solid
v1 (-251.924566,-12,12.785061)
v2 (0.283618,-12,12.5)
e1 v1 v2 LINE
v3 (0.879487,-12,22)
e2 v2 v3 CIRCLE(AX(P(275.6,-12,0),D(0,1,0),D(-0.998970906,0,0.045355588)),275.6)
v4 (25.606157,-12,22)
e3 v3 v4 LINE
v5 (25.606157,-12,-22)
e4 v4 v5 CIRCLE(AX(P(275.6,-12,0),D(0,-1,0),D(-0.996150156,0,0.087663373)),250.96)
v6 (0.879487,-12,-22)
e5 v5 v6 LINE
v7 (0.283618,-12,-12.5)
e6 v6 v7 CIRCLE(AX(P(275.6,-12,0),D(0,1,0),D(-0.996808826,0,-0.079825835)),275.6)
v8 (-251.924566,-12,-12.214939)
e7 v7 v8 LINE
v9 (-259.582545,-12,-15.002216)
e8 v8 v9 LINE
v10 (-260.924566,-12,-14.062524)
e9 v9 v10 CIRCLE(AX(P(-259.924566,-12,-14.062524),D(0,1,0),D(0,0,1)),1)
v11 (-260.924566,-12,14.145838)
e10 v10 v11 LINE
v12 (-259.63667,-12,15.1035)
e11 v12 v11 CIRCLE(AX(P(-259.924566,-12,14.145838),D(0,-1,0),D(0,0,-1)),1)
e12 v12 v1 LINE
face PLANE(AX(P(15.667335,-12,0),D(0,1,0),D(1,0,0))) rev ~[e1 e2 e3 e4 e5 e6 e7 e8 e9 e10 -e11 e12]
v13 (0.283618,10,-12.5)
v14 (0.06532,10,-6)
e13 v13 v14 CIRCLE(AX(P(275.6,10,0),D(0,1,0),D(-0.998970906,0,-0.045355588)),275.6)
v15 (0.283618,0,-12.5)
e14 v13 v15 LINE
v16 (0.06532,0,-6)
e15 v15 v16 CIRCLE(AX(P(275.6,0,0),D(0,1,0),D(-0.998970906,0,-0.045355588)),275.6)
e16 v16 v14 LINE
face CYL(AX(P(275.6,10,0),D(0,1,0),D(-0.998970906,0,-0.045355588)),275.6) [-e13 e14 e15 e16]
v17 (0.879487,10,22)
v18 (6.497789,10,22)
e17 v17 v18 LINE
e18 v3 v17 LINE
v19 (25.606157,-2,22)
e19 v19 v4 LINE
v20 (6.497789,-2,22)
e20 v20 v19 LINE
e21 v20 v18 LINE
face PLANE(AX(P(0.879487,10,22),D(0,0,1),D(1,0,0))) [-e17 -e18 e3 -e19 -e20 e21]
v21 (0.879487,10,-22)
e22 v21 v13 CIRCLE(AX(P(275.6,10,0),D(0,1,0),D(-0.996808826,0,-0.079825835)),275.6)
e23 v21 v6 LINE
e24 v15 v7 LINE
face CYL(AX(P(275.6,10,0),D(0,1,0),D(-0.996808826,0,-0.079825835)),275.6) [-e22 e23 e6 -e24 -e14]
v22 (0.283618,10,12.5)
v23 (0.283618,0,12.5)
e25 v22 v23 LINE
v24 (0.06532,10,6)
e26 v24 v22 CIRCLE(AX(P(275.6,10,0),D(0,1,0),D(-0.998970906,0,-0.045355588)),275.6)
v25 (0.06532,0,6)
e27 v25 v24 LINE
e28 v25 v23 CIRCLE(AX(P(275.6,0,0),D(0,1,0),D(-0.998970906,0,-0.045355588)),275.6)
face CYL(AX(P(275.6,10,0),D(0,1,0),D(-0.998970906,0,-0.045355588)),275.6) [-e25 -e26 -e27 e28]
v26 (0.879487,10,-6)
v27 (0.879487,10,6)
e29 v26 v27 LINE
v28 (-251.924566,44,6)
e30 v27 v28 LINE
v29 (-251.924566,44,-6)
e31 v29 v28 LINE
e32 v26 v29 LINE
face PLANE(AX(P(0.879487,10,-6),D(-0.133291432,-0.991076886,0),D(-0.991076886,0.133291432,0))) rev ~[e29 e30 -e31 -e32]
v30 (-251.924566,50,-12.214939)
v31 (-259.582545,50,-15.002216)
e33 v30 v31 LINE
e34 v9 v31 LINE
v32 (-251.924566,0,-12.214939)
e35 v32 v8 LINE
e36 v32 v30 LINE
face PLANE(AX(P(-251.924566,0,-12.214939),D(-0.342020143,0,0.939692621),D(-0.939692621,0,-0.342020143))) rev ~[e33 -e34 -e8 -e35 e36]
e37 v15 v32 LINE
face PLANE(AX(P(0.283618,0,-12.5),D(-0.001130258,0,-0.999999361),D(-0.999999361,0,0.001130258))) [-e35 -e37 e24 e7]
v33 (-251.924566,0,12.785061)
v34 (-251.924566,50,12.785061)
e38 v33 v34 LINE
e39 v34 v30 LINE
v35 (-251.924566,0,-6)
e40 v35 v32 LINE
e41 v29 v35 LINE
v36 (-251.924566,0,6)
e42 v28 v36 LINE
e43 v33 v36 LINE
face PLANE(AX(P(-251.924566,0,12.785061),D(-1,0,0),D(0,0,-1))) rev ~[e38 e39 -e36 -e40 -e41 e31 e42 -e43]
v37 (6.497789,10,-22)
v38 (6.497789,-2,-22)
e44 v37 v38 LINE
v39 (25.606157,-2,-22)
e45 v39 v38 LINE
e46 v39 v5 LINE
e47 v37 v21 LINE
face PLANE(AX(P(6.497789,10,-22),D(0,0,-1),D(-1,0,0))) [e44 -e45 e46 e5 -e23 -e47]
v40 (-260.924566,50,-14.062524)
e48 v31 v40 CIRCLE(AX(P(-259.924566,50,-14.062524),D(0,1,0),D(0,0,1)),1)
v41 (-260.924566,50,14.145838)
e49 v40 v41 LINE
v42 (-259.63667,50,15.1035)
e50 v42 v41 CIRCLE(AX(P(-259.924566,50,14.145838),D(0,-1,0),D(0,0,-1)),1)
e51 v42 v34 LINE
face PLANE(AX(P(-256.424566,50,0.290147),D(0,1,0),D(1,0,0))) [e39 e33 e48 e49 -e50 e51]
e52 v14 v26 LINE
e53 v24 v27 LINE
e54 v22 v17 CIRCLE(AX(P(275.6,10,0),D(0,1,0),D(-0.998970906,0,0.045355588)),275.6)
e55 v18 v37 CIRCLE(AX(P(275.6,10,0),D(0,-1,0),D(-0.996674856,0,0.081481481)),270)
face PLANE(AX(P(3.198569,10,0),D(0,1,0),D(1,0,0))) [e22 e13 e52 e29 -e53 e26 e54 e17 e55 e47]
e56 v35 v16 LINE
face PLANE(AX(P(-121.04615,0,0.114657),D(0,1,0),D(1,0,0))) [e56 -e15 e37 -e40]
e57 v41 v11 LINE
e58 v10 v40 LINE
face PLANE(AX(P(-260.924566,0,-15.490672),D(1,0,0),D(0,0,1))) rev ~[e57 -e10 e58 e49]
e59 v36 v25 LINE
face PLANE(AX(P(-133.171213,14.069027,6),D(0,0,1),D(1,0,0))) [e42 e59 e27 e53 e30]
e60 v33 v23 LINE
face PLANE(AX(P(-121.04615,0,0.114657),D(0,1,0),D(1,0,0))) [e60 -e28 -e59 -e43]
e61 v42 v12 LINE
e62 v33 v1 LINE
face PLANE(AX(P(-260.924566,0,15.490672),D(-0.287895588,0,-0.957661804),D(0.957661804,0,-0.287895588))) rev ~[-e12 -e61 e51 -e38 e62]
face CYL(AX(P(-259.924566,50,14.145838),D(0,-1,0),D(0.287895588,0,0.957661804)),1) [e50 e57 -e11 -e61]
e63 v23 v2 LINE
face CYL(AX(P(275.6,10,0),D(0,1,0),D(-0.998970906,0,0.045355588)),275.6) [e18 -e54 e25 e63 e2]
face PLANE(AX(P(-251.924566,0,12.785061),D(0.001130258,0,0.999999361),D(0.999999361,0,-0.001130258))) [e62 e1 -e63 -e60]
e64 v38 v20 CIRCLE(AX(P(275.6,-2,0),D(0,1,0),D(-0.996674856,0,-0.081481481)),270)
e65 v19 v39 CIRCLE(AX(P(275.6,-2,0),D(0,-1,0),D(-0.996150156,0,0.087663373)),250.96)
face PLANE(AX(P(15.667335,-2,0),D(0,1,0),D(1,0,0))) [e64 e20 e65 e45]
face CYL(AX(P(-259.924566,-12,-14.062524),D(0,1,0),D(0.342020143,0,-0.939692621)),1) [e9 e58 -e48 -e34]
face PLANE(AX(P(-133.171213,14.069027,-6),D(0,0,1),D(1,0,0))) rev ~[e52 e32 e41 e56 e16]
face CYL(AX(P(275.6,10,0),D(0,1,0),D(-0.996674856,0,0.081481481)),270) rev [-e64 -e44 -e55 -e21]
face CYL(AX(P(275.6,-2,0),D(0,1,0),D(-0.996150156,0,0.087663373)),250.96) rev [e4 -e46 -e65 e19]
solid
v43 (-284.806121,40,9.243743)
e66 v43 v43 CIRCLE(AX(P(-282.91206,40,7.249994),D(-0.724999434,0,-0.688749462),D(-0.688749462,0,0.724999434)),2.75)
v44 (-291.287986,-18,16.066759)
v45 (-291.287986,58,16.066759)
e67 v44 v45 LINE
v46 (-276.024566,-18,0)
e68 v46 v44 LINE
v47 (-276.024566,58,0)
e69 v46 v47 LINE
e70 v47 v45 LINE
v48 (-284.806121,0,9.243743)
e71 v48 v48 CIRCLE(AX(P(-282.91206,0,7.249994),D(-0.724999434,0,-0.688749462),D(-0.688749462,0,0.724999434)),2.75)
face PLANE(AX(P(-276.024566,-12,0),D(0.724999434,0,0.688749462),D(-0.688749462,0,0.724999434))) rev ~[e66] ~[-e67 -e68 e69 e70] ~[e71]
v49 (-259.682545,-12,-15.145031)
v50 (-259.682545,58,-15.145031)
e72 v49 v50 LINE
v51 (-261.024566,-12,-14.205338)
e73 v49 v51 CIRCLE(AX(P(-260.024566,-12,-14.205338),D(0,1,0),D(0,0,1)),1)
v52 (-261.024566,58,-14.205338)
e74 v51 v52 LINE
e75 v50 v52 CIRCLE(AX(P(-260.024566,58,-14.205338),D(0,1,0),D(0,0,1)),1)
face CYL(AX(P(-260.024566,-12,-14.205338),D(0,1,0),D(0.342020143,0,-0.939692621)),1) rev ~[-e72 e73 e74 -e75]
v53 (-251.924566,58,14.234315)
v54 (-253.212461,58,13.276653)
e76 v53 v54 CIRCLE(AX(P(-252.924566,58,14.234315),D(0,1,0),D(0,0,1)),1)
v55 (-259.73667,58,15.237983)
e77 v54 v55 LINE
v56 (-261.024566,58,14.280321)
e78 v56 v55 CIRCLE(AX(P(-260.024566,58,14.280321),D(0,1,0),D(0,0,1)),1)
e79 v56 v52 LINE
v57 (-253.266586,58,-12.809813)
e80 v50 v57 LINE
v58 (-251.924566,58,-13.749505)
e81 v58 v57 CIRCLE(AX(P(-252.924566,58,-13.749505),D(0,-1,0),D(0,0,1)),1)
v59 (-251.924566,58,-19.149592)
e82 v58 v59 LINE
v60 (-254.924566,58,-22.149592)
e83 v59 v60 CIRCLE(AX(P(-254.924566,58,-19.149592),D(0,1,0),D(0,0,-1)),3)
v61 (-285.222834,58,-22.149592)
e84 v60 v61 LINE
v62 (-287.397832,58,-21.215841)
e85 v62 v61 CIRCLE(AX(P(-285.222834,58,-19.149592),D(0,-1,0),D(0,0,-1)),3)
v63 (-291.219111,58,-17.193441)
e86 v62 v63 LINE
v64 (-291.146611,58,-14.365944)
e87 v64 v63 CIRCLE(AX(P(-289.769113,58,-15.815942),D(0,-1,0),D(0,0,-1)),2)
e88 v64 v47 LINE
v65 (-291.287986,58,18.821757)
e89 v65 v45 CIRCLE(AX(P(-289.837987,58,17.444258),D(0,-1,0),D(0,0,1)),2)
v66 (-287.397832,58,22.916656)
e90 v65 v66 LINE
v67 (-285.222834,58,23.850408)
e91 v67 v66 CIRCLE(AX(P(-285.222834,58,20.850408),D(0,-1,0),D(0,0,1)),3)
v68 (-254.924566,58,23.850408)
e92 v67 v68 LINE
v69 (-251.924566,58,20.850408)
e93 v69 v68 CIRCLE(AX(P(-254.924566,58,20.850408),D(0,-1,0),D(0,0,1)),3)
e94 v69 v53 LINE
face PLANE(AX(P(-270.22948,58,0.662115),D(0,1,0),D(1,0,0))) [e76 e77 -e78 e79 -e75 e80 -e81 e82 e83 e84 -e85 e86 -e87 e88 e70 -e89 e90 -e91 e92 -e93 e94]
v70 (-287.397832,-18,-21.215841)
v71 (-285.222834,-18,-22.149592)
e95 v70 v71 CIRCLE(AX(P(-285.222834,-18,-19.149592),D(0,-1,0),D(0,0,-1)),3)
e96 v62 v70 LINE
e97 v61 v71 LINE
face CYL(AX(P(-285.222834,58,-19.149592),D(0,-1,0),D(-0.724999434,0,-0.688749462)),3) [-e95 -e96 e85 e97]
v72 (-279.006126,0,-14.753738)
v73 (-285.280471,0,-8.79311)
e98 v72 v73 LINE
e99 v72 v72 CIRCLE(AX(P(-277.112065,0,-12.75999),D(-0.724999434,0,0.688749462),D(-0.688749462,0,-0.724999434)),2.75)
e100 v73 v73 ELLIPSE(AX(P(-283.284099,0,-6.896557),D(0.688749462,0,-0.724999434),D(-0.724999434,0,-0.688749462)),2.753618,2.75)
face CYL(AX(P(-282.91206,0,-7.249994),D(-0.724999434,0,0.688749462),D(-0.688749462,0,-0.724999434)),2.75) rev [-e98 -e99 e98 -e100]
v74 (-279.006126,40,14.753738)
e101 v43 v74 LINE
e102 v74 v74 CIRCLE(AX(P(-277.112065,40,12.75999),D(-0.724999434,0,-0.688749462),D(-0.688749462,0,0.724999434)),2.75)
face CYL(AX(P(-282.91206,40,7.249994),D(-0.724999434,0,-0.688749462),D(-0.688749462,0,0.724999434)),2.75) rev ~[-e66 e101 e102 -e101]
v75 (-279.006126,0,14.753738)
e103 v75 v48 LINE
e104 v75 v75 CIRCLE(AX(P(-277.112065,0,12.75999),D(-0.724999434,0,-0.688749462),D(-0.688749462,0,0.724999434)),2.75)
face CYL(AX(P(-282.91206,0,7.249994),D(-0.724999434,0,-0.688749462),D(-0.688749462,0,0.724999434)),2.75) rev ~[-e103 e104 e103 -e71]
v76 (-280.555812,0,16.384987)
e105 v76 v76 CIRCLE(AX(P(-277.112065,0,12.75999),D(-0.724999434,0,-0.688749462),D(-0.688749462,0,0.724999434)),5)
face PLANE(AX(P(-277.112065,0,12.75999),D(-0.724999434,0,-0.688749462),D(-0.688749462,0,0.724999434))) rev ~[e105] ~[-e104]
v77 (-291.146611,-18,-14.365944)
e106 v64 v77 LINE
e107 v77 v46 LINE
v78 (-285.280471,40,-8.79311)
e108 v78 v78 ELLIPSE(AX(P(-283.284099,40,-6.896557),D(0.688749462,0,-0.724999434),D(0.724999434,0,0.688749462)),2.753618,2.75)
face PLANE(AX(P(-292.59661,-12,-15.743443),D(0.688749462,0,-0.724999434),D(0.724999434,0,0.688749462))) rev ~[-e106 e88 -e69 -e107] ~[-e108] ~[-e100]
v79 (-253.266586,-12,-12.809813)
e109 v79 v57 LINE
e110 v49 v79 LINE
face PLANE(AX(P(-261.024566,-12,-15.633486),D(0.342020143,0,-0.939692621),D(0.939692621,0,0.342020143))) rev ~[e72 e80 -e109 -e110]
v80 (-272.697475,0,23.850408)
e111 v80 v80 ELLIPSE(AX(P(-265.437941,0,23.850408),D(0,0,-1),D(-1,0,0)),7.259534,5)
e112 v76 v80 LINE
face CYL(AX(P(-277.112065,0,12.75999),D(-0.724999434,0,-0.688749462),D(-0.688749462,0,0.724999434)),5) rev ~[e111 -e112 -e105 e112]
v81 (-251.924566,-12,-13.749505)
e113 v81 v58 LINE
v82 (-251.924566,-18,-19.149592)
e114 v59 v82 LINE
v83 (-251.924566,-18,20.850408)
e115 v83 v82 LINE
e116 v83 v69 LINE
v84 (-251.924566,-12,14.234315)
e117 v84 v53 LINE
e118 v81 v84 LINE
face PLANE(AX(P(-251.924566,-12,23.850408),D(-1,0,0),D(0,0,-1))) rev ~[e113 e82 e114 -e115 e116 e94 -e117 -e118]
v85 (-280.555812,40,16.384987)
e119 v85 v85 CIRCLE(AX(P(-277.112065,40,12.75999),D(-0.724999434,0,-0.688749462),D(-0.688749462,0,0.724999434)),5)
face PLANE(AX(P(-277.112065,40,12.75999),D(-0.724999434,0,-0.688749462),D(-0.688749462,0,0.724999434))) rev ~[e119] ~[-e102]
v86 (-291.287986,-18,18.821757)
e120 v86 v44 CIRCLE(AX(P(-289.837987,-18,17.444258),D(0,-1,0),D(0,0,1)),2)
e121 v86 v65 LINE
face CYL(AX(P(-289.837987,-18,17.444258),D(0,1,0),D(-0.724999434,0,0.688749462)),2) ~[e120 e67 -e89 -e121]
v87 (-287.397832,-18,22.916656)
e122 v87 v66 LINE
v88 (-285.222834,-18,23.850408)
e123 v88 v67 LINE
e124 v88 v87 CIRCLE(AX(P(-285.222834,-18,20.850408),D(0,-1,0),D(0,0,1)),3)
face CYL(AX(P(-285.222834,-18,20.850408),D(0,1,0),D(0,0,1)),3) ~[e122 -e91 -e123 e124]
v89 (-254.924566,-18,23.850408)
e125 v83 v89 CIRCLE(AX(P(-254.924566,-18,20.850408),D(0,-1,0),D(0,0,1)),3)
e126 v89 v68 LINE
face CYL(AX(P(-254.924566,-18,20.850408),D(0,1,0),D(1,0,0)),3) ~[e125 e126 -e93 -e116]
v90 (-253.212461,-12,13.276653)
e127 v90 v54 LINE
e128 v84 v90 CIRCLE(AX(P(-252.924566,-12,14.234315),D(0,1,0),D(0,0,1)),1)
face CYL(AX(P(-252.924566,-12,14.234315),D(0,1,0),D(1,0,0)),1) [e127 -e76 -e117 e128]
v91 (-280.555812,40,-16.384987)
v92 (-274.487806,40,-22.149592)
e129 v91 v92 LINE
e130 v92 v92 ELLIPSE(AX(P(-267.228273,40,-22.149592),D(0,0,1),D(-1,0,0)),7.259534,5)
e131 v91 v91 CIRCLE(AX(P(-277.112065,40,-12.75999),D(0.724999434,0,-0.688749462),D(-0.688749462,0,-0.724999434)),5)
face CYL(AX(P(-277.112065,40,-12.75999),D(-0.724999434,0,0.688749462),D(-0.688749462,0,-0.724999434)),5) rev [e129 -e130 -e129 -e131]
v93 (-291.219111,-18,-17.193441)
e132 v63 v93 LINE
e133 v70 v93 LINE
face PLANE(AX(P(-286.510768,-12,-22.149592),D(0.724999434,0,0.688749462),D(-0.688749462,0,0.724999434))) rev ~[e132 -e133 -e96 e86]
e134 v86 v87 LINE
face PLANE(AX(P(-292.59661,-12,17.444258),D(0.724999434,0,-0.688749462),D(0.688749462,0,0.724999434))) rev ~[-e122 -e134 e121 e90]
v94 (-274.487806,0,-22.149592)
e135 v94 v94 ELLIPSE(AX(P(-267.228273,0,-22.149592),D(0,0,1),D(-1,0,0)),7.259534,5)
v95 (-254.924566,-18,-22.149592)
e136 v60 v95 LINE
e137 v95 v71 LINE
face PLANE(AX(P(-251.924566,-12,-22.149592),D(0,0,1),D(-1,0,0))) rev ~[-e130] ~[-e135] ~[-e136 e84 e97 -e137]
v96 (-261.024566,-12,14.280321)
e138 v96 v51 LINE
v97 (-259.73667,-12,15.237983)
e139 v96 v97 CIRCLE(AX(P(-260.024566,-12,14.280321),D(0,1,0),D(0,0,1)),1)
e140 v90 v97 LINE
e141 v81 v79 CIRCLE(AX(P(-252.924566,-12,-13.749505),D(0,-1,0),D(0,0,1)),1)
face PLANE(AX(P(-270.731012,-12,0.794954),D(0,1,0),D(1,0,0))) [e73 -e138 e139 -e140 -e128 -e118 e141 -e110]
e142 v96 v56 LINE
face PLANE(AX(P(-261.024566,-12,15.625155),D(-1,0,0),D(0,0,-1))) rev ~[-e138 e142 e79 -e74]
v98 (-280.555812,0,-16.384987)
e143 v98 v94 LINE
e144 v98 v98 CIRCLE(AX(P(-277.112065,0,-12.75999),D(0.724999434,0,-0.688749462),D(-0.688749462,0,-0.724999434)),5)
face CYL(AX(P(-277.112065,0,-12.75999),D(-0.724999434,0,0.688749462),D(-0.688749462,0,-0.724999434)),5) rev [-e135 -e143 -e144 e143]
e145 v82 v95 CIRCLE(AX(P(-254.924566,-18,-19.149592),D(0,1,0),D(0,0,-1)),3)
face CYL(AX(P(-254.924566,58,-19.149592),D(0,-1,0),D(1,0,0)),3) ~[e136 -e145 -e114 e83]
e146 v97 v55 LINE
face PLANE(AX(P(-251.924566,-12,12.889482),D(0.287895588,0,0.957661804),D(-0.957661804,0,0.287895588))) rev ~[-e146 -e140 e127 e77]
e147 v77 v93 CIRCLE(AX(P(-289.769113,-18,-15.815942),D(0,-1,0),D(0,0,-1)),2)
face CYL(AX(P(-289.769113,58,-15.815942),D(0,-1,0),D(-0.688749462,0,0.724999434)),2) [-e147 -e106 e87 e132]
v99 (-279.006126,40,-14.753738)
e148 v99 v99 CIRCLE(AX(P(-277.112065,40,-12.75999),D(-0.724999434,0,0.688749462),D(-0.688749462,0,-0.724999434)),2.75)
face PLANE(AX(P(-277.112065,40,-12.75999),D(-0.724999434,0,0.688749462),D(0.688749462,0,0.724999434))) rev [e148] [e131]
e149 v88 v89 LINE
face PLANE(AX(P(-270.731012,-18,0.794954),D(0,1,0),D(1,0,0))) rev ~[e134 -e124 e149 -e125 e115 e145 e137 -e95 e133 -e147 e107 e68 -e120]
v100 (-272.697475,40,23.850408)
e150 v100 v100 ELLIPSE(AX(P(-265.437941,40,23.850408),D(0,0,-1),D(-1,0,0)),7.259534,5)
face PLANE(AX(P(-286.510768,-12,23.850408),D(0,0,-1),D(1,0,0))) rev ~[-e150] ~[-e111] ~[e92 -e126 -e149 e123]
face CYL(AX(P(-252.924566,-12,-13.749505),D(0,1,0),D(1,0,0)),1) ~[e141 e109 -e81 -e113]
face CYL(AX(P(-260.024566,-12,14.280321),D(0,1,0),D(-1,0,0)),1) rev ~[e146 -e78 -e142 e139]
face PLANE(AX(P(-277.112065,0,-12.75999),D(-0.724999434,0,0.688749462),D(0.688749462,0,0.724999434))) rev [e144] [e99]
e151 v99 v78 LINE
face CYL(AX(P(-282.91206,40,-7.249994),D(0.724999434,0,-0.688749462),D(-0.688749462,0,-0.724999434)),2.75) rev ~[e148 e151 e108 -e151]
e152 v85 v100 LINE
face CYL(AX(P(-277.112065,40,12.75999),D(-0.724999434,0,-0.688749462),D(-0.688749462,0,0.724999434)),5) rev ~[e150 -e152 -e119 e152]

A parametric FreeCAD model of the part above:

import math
import FreeCAD as App
import Part
import Sketcher
Q = App.Units.Quantity


def edges_at(feature, points):
    """Names of the edges that pass closest to the given points."""
    edges = feature.Shape.Edges
    near = lambda p: min(range(len(edges)), key=lambda i: edges[i].distToShape(Part.Vertex(*p))[0])
    return sorted({f"Edge{near(p) + 1}" for p in points})

doc = App.newDocument("Part")
body = doc.addObject("PartDesign::Body", "Body")

sketch1 = body.newObject("Sketcher::SketchObject", "Sketch")
sketch1.AttachmentSupport = (doc.getObject("XZ_Plane"), [""])
sketch1.MapMode = "FlatFace"
sketch1.addGeometry(Part.LineSegment(App.Vector(-260.924566, -15.490672, 0), App.Vector(-260.924566, 15.490672, 0)), False)
sketch1.addGeometry(Part.LineSegment(App.Vector(-260.924566, 15.490672, 0), App.Vector(-251.924566, 12.785061, 0)), False)
sketch1.addGeometry(Part.LineSegment(App.Vector(-251.924566, 12.785061, 0), App.Vector(0.283618, 12.5, 0)), False)
sketch1.addGeometry(Part.ArcOfCircle(Part.Circle(App.Vector(275.6, 0, 0), App.Vector(0, 0, 1), 275.6), math.radians(175.421445), math.radians(177.400424)), False)
sketch1.addGeometry(Part.LineSegment(App.Vector(0.879487, 22, 0), App.Vector(6.497789, 22, 0)), False)
sketch1.addGeometry(Part.ArcOfCircle(Part.Circle(App.Vector(275.6, 0, 0), App.Vector(0, 0, 1), 270), math.radians(175.326274), math.radians(184.673726)), False)
sketch1.addGeometry(Part.LineSegment(App.Vector(6.497789, -22, 0), App.Vector(0.879487, -22, 0)), False)
sketch1.addGeometry(Part.ArcOfCircle(Part.Circle(App.Vector(275.6, 0, 0), App.Vector(0, 0, 1), 275.6), math.radians(-177.400424), math.radians(-175.421445)), False)
sketch1.addGeometry(Part.LineSegment(App.Vector(0.283618, -12.5, 0), App.Vector(-251.924566, -12.214939, 0)), False)
sketch1.addGeometry(Part.LineSegment(App.Vector(-251.924566, -12.214939, 0), App.Vector(-260.924566, -15.490672, 0)), False)
sketch1.addConstraint(Sketcher.Constraint("Coincident", 0, 2, 1, 1))
sketch1.addConstraint(Sketcher.Constraint("Coincident", 1, 2, 2, 1))
sketch1.addConstraint(Sketcher.Constraint("Coincident", 2, 2, 3, 2))
sketch1.addConstraint(Sketcher.Constraint("Coincident", 3, 1, 4, 1))
sketch1.addConstraint(Sketcher.Constraint("Coincident", 4, 2, 5, 1))
sketch1.addConstraint(Sketcher.Constraint("Coincident", 5, 2, 6, 1))
sketch1.addConstraint(Sketcher.Constraint("Coincident", 6, 2, 7, 2))
sketch1.addConstraint(Sketcher.Constraint("Coincident", 7, 1, 8, 1))
sketch1.addConstraint(Sketcher.Constraint("Coincident", 8, 2, 9, 1))
sketch1.addConstraint(Sketcher.Constraint("Coincident", 9, 2, 0, 1))
sketch1.addConstraint(Sketcher.Constraint("Vertical", 0))
sketch1.addConstraint(Sketcher.Constraint("Horizontal", 4))
sketch1.addConstraint(Sketcher.Constraint("Horizontal", 6))
sketch1.addConstraint(Sketcher.Constraint("Coincident", 5, 3, 3, 3))
sketch1.addConstraint(Sketcher.Constraint("Coincident", 7, 3, 3, 3))
sketch1.addConstraint(Sketcher.Constraint("Equal", 3, 7))
sketch1.addConstraint(Sketcher.Constraint("Symmetric", 4, 2, 5, 2, -1))
sketch1.addConstraint(Sketcher.Constraint("Parallel", 2, 8))
sketch1.addConstraint(Sketcher.Constraint("Vertical", 2, 2, 7, 1))
sketch1.addConstraint(Sketcher.Constraint("Vertical", 1, 2, 8, 2))
sketch1.addConstraint(Sketcher.Constraint("Radius", 5, 270.0))
sketch1.addConstraint(Sketcher.Constraint("Radius", 3, 275.6))
sketch1.addConstraint(Sketcher.Constraint("Angle", 9, Q("-160 deg")))
sketch1.addConstraint(Sketcher.Constraint("DistanceY", -1, 1, 4, 2, 22.0))
sketch1.addConstraint(Sketcher.Constraint("DistanceX", 0, 2, 1, 2, 9.0))
sketch1.addConstraint(Sketcher.Constraint("DistanceY", 7, 1, 2, 2, 25.0))
sketch1.addConstraint(Sketcher.Constraint("DistanceX", -1, 1, 3, 3, 275.6))
sketch1.addConstraint(Sketcher.Constraint("Distance", 1, 9.39789))
sketch1.addConstraint(Sketcher.Constraint("DistanceY", -1, 1, 0, 2, 15.490672))
sketch1.addConstraint(Sketcher.Constraint("Distance", 2, 252.208345))
pad1 = body.newObject("PartDesign::Pad", "Pad")
pad1.Profile = sketch1
pad1.Length = 12

sketch2 = body.newObject("Sketcher::SketchObject", "Sketch001")
sketch2.AttachmentSupport = (doc.getObject("XZ_Plane"), [""])
sketch2.MapMode = "FlatFace"
sketch2.AttachmentOffset = App.Placement(App.Vector(0, 0, 2), App.Rotation())
sketch2.addGeometry(Part.LineSegment(App.Vector(25.606157, -22, 0), App.Vector(6.497789, -22, 0)), False)
sketch2.addGeometry(Part.ArcOfCircle(Part.Circle(App.Vector(275.6, 0, 0), App.Vector(0, 0, 1), 270), math.radians(175.326274), math.radians(184.673726)), False)
sketch2.addGeometry(Part.LineSegment(App.Vector(6.497789, 22, 0), App.Vector(25.606157, 22, 0)), False)
sketch2.addGeometry(Part.ArcOfCircle(Part.Circle(App.Vector(275.6, 0, 0), App.Vector(0, 0, 1), 250.96), math.radians(174.970803), math.radians(185.029197)), False)
sketch2.addConstraint(Sketcher.Constraint("Coincident", 0, 2, 1, 2))
sketch2.addConstraint(Sketcher.Constraint("Coincident", 1, 1, 2, 1))
sketch2.addConstraint(Sketcher.Constraint("Coincident", 2, 2, 3, 1))
sketch2.addConstraint(Sketcher.Constraint("Coincident", 3, 2, 0, 1))
sketch2.addConstraint(Sketcher.Constraint("Horizontal", 0))
sketch2.addConstraint(Sketcher.Constraint("Horizontal", 2))
sketch2.addConstraint(Sketcher.Constraint("Coincident", 3, 3, 1, 3))
sketch2.addConstraint(Sketcher.Constraint("Symmetric", 0, 2, 1, 1, -1))
sketch2.addConstraint(Sketcher.Constraint("Radius", 1, 270.0))
sketch2.addConstraint(Sketcher.Constraint("Radius", 3, 250.96))
sketch2.addConstraint(Sketcher.Constraint("DistanceY", 0, 2, -1, 1, 22.0))
sketch2.addConstraint(Sketcher.Constraint("DistanceX", -1, 1, 1, 3, 275.6))
pad2 = body.newObject("PartDesign::Pad", "Pad001")
pad2.Profile = sketch2
pad2.Length = 10

sketch3 = body.newObject("Sketcher::SketchObject", "Sketch002")
sketch3.AttachmentSupport = (doc.getObject("XZ_Plane"), [""])
sketch3.MapMode = "FlatFace"
sketch3.AttachmentOffset = App.Placement(App.Vector(0, 0, -10), App.Rotation())
sketch3.addGeometry(Part.ArcOfCircle(Part.Circle(App.Vector(275.6, 0, 0), App.Vector(0, 0, 1), 275.6), math.radians(-177.400424), math.radians(-175.421445)), False)
sketch3.addGeometry(Part.ArcOfCircle(Part.Circle(App.Vector(275.6, 0, 0), App.Vector(0, 0, 1), 275.6), math.radians(177.400424), math.radians(182.599576)), False)
sketch3.addGeometry(Part.ArcOfCircle(Part.Circle(App.Vector(275.6, 0, 0), App.Vector(0, 0, 1), 275.6), math.radians(175.421445), math.radians(177.400424)), False)
sketch3.addGeometry(Part.LineSegment(App.Vector(0.879487, 22, 0), App.Vector(6.497789, 22, 0)), False)
sketch3.addGeometry(Part.ArcOfCircle(Part.Circle(App.Vector(275.6, 0, 0), App.Vector(0, 0, 1), 270), math.radians(175.326274), math.radians(184.673726)), False)
sketch3.addGeometry(Part.LineSegment(App.Vector(6.497789, -22, 0), App.Vector(0.879487, -22, 0)), False)
sketch3.addConstraint(Sketcher.Constraint("Tangent", 0, 1, 1, 2))
sketch3.addConstraint(Sketcher.Constraint("Tangent", 1, 1, 2, 2))
sketch3.addConstraint(Sketcher.Constraint("Coincident", 2, 1, 3, 1))
sketch3.addConstraint(Sketcher.Constraint("Coincident", 3, 2, 4, 1))
sketch3.addConstraint(Sketcher.Constraint("Coincident", 4, 2, 5, 1))
sketch3.addConstraint(Sketcher.Constraint("Coincident", 5, 2, 0, 2))
sketch3.addConstraint(Sketcher.Constraint("Horizontal", 3))
sketch3.addConstraint(Sketcher.Constraint("Horizontal", 5))
sketch3.addConstraint(Sketcher.Constraint("Coincident", 2, 3, 0, 3))
sketch3.addConstraint(Sketcher.Constraint("Coincident", 4, 3, 0, 3))
sketch3.addConstraint(Sketcher.Constraint("Symmetric", 0, 1, 1, 1, -1))
sketch3.addConstraint(Sketcher.Constraint("Vertical", 3, 2, 4, 2))
sketch3.addConstraint(Sketcher.Constraint("Radius", 4, 270.0))
sketch3.addConstraint(Sketcher.Constraint("Radius", 0, 275.6))
sketch3.addConstraint(Sketcher.Constraint("DistanceY", -1, 1, 3, 2, 22.0))
sketch3.addConstraint(Sketcher.Constraint("DistanceY", 0, 1, 1, 1, 25.0))
sketch3.addConstraint(Sketcher.Constraint("DistanceX", -1, 1, 0, 3, 275.6))
pad3 = body.newObject("PartDesign::Pad", "Pad002")
pad3.Profile = sketch3
pad3.Length = 22

sketch4 = body.newObject("Sketcher::SketchObject", "Sketch003")
sketch4.AttachmentSupport = (doc.getObject("XZ_Plane"), [""])
sketch4.MapMode = "FlatFace"
sketch4.addGeometry(Part.LineSegment(App.Vector(-251.924566, 12.785061, 0), App.Vector(-251.924566, -12.214939, 0)), False)
sketch4.addGeometry(Part.LineSegment(App.Vector(-251.924566, -12.214939, 0), App.Vector(-260.924566, -15.490672, 0)), False)
sketch4.addGeometry(Part.LineSegment(App.Vector(-260.924566, -15.490672, 0), App.Vector(-260.924566, 15.490672, 0)), False)
sketch4.addGeometry(Part.LineSegment(App.Vector(-260.924566, 15.490672, 0), App.Vector(-251.924566, 12.785061, 0)), False)
sketch4.addConstraint(Sketcher.Constraint("Coincident", 0, 2, 1, 1))
sketch4.addConstraint(Sketcher.Constraint("Coincident", 1, 2, 2, 1))
sketch4.addConstraint(Sketcher.Constraint("Coincident", 2, 2, 3, 1))
sketch4.addConstraint(Sketcher.Constraint("Coincident", 3, 2, 0, 1))
sketch4.addConstraint(Sketcher.Constraint("Vertical", 0))
sketch4.addConstraint(Sketcher.Constraint("Vertical", 2))
sketch4.addConstraint(Sketcher.Constraint("DistanceY", 0, 2, 0, 1, 25.0))
sketch4.addConstraint(Sketcher.Constraint("Angle", 1, Q("-160 deg")))
sketch4.addConstraint(Sketcher.Constraint("DistanceX", 1, 2, 0, 2, 9.0))
sketch4.addConstraint(Sketcher.Constraint("Distance", 3, 9.39789))
sketch4.addConstraint(Sketcher.Constraint("DistanceY", 0, 2, -1, 1, 12.214939))
sketch4.addConstraint(Sketcher.Constraint("DistanceX", 0, 2, -1, 1, 251.924566))
pad4 = body.newObject("PartDesign::Pad", "Pad003")
pad4.Profile = sketch4
pad4.Length = 50
pad4.Reversed = True

sketch5 = body.newObject("Sketcher::SketchObject", "Sketch004")
sketch5.AttachmentSupport = (doc.getObject("XY_Plane"), [""])
sketch5.MapMode = "FlatFace"
sketch5.addGeometry(Part.LineSegment(App.Vector(0.879487, 10, 0), App.Vector(-251.924566, 44, 0)), False)
sketch5.addGeometry(Part.LineSegment(App.Vector(-251.924566, 44, 0), App.Vector(-251.924566, 0, 0)), False)
sketch5.addGeometry(Part.LineSegment(App.Vector(-251.924566, 0, 0), App.Vector(0.879487, 0, 0)), False)
sketch5.addGeometry(Part.LineSegment(App.Vector(0.879487, 0, 0), App.Vector(0.879487, 10, 0)), False)
sketch5.addConstraint(Sketcher.Constraint("Coincident", 0, 2, 1, 1))
sketch5.addConstraint(Sketcher.Constraint("Coincident", 1, 2, 2, 1))
sketch5.addConstraint(Sketcher.Constraint("Coincident", 2, 2, 3, 1))
sketch5.addConstraint(Sketcher.Constraint("Coincident", 3, 2, 0, 1))
sketch5.addConstraint(Sketcher.Constraint("Vertical", 1))
sketch5.addConstraint(Sketcher.Constraint("Horizontal", 2))
sketch5.addConstraint(Sketcher.Constraint("Vertical", 3))
sketch5.addConstraint(Sketcher.Constraint("PointOnObject", 1, 2, -1))
sketch5.addConstraint(Sketcher.Constraint("DistanceY", 1, 2, 1, 1, 44.0))
sketch5.addConstraint(Sketcher.Constraint("DistanceY", 3, 1, 3, 2, 10.0))
sketch5.addConstraint(Sketcher.Constraint("DistanceX", 2, 1, 2, 2, 252.804053))
sketch5.addConstraint(Sketcher.Constraint("DistanceX", 0, 2, -1, 1, 251.924566))
pad5 = body.newObject("PartDesign::Pad", "Pad004")
pad5.Profile = sketch5
pad5.Type = "TwoLengths"
pad5.Length = 6
pad5.Length2 = 6
doc.recompute()

fillet = body.newObject("PartDesign::Fillet", "Fillet")
fillet.Base = (pad5, edges_at(pad5, [(-260.925, 19, 15.491), (-260.925, 19, -15.491)]))
fillet.Radius = 1
body2 = doc.addObject("PartDesign::Body", "Body001")

sketch6 = body2.newObject("Sketcher::SketchObject", "Sketch005")
sketch6.AttachmentSupport = (doc.getObject("XZ_Plane001"), [""])
sketch6.MapMode = "FlatFace"
sketch6.AttachmentOffset = App.Placement(App.Vector(0, 0, 12), App.Rotation())
sketch6.addGeometry(Part.LineSegment(App.Vector(-251.924566, 23.850408, 0), App.Vector(-251.924566, -22.149592, 0)), False)
sketch6.addGeometry(Part.LineSegment(App.Vector(-251.924566, -22.149592, 0), App.Vector(-286.510768, -22.149592, 0)), False)
sketch6.addGeometry(Part.LineSegment(App.Vector(-286.510768, -22.149592, 0), App.Vector(-292.59661, -15.743443, 0)), False)
sketch6.addGeometry(Part.LineSegment(App.Vector(-292.59661, -15.743443, 0), App.Vector(-276.024566, 0, 0)), False)
sketch6.addGeometry(Part.LineSegment(App.Vector(-276.024566, 0, 0), App.Vector(-292.59661, 17.444258, 0)), False)
sketch6.addGeometry(Part.LineSegment(App.Vector(-292.59661, 17.444258, 0), App.Vector(-286.510768, 23.850408, 0)), False)
sketch6.addGeometry(Part.LineSegment(App.Vector(-286.510768, 23.850408, 0), App.Vector(-251.924566, 23.850408, 0)), False)
sketch6.addConstraint(Sketcher.Constraint("Coincident", 0, 2, 1, 1))
sketch6.addConstraint(Sketcher.Constraint("Coincident", 1, 2, 2, 1))
sketch6.addConstraint(Sketcher.Constraint("Coincident", 2, 2, 3, 1))
sketch6.addConstraint(Sketcher.Constraint("Coincident", 3, 2, 4, 1))
sketch6.addConstraint(Sketcher.Constraint("Coincident", 4, 2, 5, 1))
sketch6.addConstraint(Sketcher.Constraint("Coincident", 5, 2, 6, 1))
sketch6.addConstraint(Sketcher.Constraint("Coincident", 6, 2, 0, 1))
sketch6.addConstraint(Sketcher.Constraint("Vertical", 0))
sketch6.addConstraint(Sketcher.Constraint("Horizontal", 1))
sketch6.addConstraint(Sketcher.Constraint("Horizontal", 6))
sketch6.addConstraint(Sketcher.Constraint("PointOnObject", 3, 2, -1))
sketch6.addConstraint(Sketcher.Constraint("Perpendicular", 2, 3))
sketch6.addConstraint(Sketcher.Constraint("Perpendicular", 3, 4))
sketch6.addConstraint(Sketcher.Constraint("Vertical", 2, 2, 4, 2))
sketch6.addConstraint(Sketcher.Constraint("Vertical", 1, 2, 5, 2))
sketch6.addConstraint(Sketcher.Constraint("Equal", 2, 5))
sketch6.addConstraint(Sketcher.Constraint("DistanceY", 0, 2, 0, 1, 46.0))
sketch6.addConstraint(Sketcher.Constraint("DistanceX", 3, 2, 0, 2, 24.1))
sketch6.addConstraint(Sketcher.Constraint("DistanceY", 2, 2, 4, 2, 33.1877))
sketch6.addConstraint(Sketcher.Constraint("Distance", 3, 22.858011))
sketch6.addConstraint(Sketcher.Constraint("DistanceX", 2, 2, -1, 1, 292.59661))
pad6 = body2.newObject("PartDesign::Pad", "Pad005")
pad6.Profile = sketch6
pad6.Length = 6

sketch7 = body2.newObject("Sketcher::SketchObject", "Sketch006")
sketch7.AttachmentSupport = (doc.getObject("XZ_Plane001"), [""])
sketch7.MapMode = "FlatFace"
sketch7.AttachmentOffset = App.Placement(App.Vector(0, 0, 12), App.Rotation())
sketch7.addGeometry(Part.LineSegment(App.Vector(-292.59661, -15.743443, 0), App.Vector(-276.024566, 0, 0)), False)
sketch7.addGeometry(Part.LineSegment(App.Vector(-276.024566, 0, 0), App.Vector(-292.59661, 17.444258, 0)), False)
sketch7.addGeometry(Part.LineSegment(App.Vector(-292.59661, 17.444258, 0), App.Vector(-286.510768, 23.850408, 0)), False)
sketch7.addGeometry(Part.LineSegment(App.Vector(-286.510768, 23.850408, 0), App.Vector(-251.924566, 23.850408, 0)), False)
sketch7.addGeometry(Part.LineSegment(App.Vector(-251.924566, 23.850408, 0), App.Vector(-251.924566, 12.889482, 0)), False)
sketch7.addGeometry(Part.LineSegment(App.Vector(-251.924566, 12.889482, 0), App.Vector(-261.024566, 15.625155, 0)), False)
sketch7.addGeometry(Part.LineSegment(App.Vector(-261.024566, 15.625155, 0), App.Vector(-261.024566, -15.633486, 0)), False)
sketch7.addGeometry(Part.LineSegment(App.Vector(-261.024566, -15.633486, 0), App.Vector(-251.924566, -12.321357, 0)), False)
sketch7.addGeometry(Part.LineSegment(App.Vector(-251.924566, -12.321357, 0), App.Vector(-251.924566, -22.149592, 0)), False)
sketch7.addGeometry(Part.LineSegment(App.Vector(-251.924566, -22.149592, 0), App.Vector(-286.510768, -22.149592, 0)), False)
sketch7.addGeometry(Part.LineSegment(App.Vector(-286.510768, -22.149592, 0), App.Vector(-292.59661, -15.743443, 0)), False)
sketch7.addConstraint(Sketcher.Constraint("Coincident", 0, 2, 1, 1))
sketch7.addConstraint(Sketcher.Constraint("Coincident", 1, 2, 2, 1))
sketch7.addConstraint(Sketcher.Constraint("Coincident", 2, 2, 3, 1))
sketch7.addConstraint(Sketcher.Constraint("Coincident", 3, 2, 4, 1))
sketch7.addConstraint(Sketcher.Constraint("Coincident", 4, 2, 5, 1))
sketch7.addConstraint(Sketcher.Constraint("Coincident", 5, 2, 6, 1))
sketch7.addConstraint(Sketcher.Constraint("Coincident", 6, 2, 7, 1))
sketch7.addConstraint(Sketcher.Constraint("Coincident", 7, 2, 8, 1))
sketch7.addConstraint(Sketcher.Constraint("Coincident", 8, 2, 9, 1))
sketch7.addConstraint(Sketcher.Constraint("Coincident", 9, 2, 10, 1))
sketch7.addConstraint(Sketcher.Constraint("Coincident", 10, 2, 0, 1))
sketch7.addConstraint(Sketcher.Constraint("Horizontal", 3))
sketch7.addConstraint(Sketcher.Constraint("Vertical", 4))
sketch7.addConstraint(Sketcher.Constraint("Vertical", 6))
sketch7.addConstraint(Sketcher.Constraint("Vertical", 8))
sketch7.addConstraint(Sketcher.Constraint("Horizontal", 9))
sketch7.addConstraint(Sketcher.Constraint("PointOnObject", 0, 2, -1))
sketch7.addConstraint(Sketcher.Constraint("Perpendicular", 0, 1))
sketch7.addConstraint(Sketcher.Constraint("Parallel", 1, 10))
sketch7.addConstraint(Sketcher.Constraint("Vertical", 4, 2, 7, 2))
sketch7.addConstraint(Sketcher.Constraint("Vertical", 2, 2, 9, 2))
sketch7.addConstraint(Sketcher.Constraint("Vertical", 1, 2, 10, 2))
sketch7.addConstraint(Sketcher.Constraint("Equal", 2, 10))
sketch7.addConstraint(Sketcher.Constraint("Angle", 7, Q("20 deg")))
sketch7.addConstraint(Sketcher.Constraint("DistanceX", 0, 2, 5, 2, 15.0))
sketch7.addConstraint(Sketcher.Constraint("DistanceX", 0, 2, 3, 2, 24.1))
sketch7.addConstraint(Sketcher.Constraint("DistanceY", 6, 2, 6, 1, 31.258641))
sketch7.addConstraint(Sketcher.Constraint("DistanceY", 10, 2, 1, 2, 33.1877))
sketch7.addConstraint(Sketcher.Constraint("Distance", 0, 22.858011))
sketch7.addConstraint(Sketcher.Constraint("Distance", 5, 9.502311))
sketch7.addConstraint(Sketcher.Constraint("DistanceX", 3, 1, 3, 2, 34.586202))
sketch7.addConstraint(Sketcher.Constraint("DistanceY", 4, 2, 4, 1, 10.960926))
sketch7.addConstraint(Sketcher.Constraint("DistanceX", 1, 2, -1, 1, 292.59661))
pad7 = body2.newObject("PartDesign::Pad", "Pad006")
pad7.Profile = sketch7
pad7.Length = 70
pad7.Reversed = True

sketch8 = body2.newObject("Sketcher::SketchObject", "Sketch007")
sketch8.Placement = App.Placement(App.Vector(-139.28519, 0, -132.320931), App.Rotation(App.Vector(-0.688749462, 0, 0.724999434), App.Vector(0, 1.000000001, 0), App.Vector(-0.724999434, 0, -0.688749462), "ZXY"))
sketch8.addGeometry(Part.Circle(App.Vector(200.111771, 40, 0), App.Vector(0, 0, 1), 5), False)
sketch8.addGeometry(Part.Circle(App.Vector(200.111771, 0, 0), App.Vector(0, 0, 1), 5), False)
sketch8.addConstraint(Sketcher.Constraint("Equal", 0, 1))
sketch8.addConstraint(Sketcher.Constraint("PointOnObject", 1, 3, -1))
sketch8.addConstraint(Sketcher.Constraint("Vertical", 0, 3, 1, 3))
sketch8.addConstraint(Sketcher.Constraint("Diameter", 0, 10.0))
sketch8.addConstraint(Sketcher.Constraint("DistanceY", -1, 1, 0, 3, 40.0))
sketch8.addConstraint(Sketcher.Constraint("DistanceX", -1, 1, 0, 3, 200.111771))
pocket1 = body2.newObject("PartDesign::Pocket", "Pocket")
pocket1.Profile = sketch8
pocket1.Type = "ThroughAll"

sketch9 = body2.newObject("Sketcher::SketchObject", "Sketch008")
sketch9.Placement = App.Placement(App.Vector(-145.085186, 0, -137.830926), App.Rotation(App.Vector(-0.688749462, 0, 0.724999434), App.Vector(0, 1.000000001, 0), App.Vector(-0.724999434, 0, -0.688749462), "ZXY"))
sketch9.addGeometry(Part.Circle(App.Vector(200.111771, 40, 0), App.Vector(0, 0, 1), 2.75), False)
sketch9.addGeometry(Part.Circle(App.Vector(200.111771, 0, 0), App.Vector(0, 0, 1), 2.75), False)
sketch9.addConstraint(Sketcher.Constraint("Equal", 0, 1))
sketch9.addConstraint(Sketcher.Constraint("PointOnObject", 1, 3, -1))
sketch9.addConstraint(Sketcher.Constraint("Vertical", 0, 3, 1, 3))
sketch9.addConstraint(Sketcher.Constraint("Diameter", 0, 5.5))
sketch9.addConstraint(Sketcher.Constraint("DistanceY", -1, 1, 0, 3, 40.0))
sketch9.addConstraint(Sketcher.Constraint("DistanceX", -1, 1, 0, 3, 200.111771))
pocket2 = body2.newObject("PartDesign::Pocket", "Pocket001")
pocket2.Profile = sketch9
pocket2.Length = 486.31555
pocket2.Midplane = True
doc.recompute()

mirrored = body2.newObject("PartDesign::Mirrored", "Mirrored")
mirrored.Originals = [pocket1, pocket2]
mirrored.MirrorPlane = (doc.getObject("XY_Plane001"), [""])
body2.Tip = mirrored
doc.recompute()

fillet2 = body2.newObject("PartDesign::Fillet", "Fillet001")
fillet2.Base = (mirrored, edges_at(mirrored, [
    (-251.925, 23, 12.889),
    (-261.025, 23, 15.625),
    (-261.025, 23, -15.633),
    (-251.925, 23, -12.321),
]))
fillet2.Radius = 1
doc.recompute()

fillet3 = body2.newObject("PartDesign::Fillet", "Fillet002")
fillet3.Base = (fillet2, edges_at(fillet2, [
    (-251.925, 20, 23.85),
    (-251.925, 20, -22.15),
    (-286.511, 20, -22.15),
    (-286.511, 20, 23.85),
]))
fillet3.Radius = 3
doc.recompute()

fillet4 = body2.newObject("PartDesign::Fillet", "Fillet003")
fillet4.Base = (fillet3, edges_at(fillet3, [(-292.597, 20, -15.743), (-292.597, 20, 17.444)]))
fillet4.Radius = 2

doc.recompute()
